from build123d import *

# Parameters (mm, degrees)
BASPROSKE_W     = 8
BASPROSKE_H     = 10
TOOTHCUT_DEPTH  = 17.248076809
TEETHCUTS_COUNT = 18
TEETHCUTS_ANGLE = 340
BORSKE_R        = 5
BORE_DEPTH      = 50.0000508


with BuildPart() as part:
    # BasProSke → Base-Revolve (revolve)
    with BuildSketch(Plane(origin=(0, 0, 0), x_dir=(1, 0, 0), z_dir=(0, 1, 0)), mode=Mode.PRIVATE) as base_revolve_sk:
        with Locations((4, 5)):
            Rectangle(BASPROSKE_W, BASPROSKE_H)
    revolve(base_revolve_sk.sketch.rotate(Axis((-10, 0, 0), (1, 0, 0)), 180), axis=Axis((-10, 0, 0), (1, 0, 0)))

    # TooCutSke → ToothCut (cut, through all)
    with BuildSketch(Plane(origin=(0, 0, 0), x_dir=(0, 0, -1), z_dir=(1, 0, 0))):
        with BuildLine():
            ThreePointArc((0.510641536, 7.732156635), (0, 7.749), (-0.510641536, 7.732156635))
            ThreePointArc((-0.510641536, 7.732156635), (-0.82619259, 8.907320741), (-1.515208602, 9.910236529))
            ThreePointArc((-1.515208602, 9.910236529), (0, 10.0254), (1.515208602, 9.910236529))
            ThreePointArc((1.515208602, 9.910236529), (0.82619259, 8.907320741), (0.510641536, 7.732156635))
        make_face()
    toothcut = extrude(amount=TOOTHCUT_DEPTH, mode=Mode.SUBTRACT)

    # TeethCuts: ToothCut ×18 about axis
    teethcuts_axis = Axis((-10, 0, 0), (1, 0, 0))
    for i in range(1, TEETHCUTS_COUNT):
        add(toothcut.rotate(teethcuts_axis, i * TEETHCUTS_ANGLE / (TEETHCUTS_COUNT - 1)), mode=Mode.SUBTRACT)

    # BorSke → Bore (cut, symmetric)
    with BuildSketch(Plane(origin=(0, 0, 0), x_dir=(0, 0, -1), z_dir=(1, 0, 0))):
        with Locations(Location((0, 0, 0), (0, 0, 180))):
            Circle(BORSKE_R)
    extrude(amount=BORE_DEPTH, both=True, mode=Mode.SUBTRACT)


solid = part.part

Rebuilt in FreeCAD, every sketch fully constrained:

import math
import FreeCAD as App
import Part
import Sketcher
Q = App.Units.Quantity


def add_polygon(sketch, points):
    """Adds a closed chain of lines whose ends are joined by coincident constraints."""
    first, n = sketch.GeometryCount, len(points)
    for a, b in zip(points, points[1:] + points[:1]):
        sketch.addGeometry(Part.LineSegment(App.Vector(*a, 0), App.Vector(*b, 0)), False)
    for i in range(n):
        sketch.addConstraint(Sketcher.Constraint("Coincident", first + i, 2, first + (i + 1) % n, 1))

doc = App.newDocument("Part")
params = doc.addObject("Spreadsheet::Sheet", "Params")
for row, (alias, value) in enumerate([
    ("sketch1_width", "8 mm"),
    ("sketch1_height", "10 mm"),
    ("revolution_angle", "360 deg"),
    ("sketch2_radius", "3.6 mm"),
    ("sketch3_diameter", "10 mm"),
    ("pocket2_length", "100.000102 mm"),
], start=1):
    params.set(f"A{row}", alias)
    params.set(f"B{row}", "=" + value)
    params.setAlias(f"B{row}", alias)

body = doc.addObject("PartDesign::Body", "Body")

# Sketch on XZ plane
sketch1 = body.newObject("Sketcher::SketchObject", "Sketch")
sketch1.AttachmentSupport = (doc.getObject("XZ_Plane"), [""])
sketch1.MapMode = "FlatFace"
add_polygon(sketch1, [(0, -10), (0, 0), (8, 0), (8, -10)])  # lines 0-3
sketch1.addConstraint(Sketcher.Constraint("Vertical", 0))
sketch1.addConstraint(Sketcher.Constraint("Horizontal", 1))
sketch1.addConstraint(Sketcher.Constraint("Vertical", 2))
sketch1.addConstraint(Sketcher.Constraint("Horizontal", 3))
sketch1.addConstraint(Sketcher.Constraint("Coincident", 0, 2, -1, 1))
sketch1.addConstraint(Sketcher.Constraint("DistanceX", 1, 1, 1, 2, Q("8 mm")))
sketch1.addConstraint(Sketcher.Constraint("DistanceY", 0, 1, 0, 2, Q("10 mm")))
sketch1.setExpression("Constraints[9]", "Params.sketch1_width")
sketch1.setExpression("Constraints[10]", "Params.sketch1_height")
revolution = body.newObject("PartDesign::Revolution", "Revolution")
revolution.Profile = sketch1
revolution.ReferenceAxis = (sketch1, ["H_Axis"])
revolution.setExpression("Angle", "Params.revolution_angle")

# Sketch on YZ plane
sketch2 = body.newObject("Sketcher::SketchObject", "Sketch001")
sketch2.AttachmentSupport = (doc.getObject("YZ_Plane"), [""])
sketch2.MapMode = "FlatFace"
sketch2.addGeometry(Part.ArcOfCircle(Part.Circle(App.Vector(0, 0, 0), App.Vector(0, 0, 1), 7.749), math.radians(-3.7784), math.radians(3.7784)), False)
sketch2.addGeometry(Part.ArcOfCircle(Part.Circle(App.Vector(7.399578, -4.095246, 0), App.Vector(0, 0, 1), 3.6), math.radians(45.780817), math.radians(84.699291)), False)
sketch2.addGeometry(Part.ArcOfCircle(Part.Circle(App.Vector(0, 0, 0), App.Vector(0, 0, 1), 10.0254), math.radians(-8.692821), math.radians(8.692821)), False)
sketch2.addGeometry(Part.ArcOfCircle(Part.Circle(App.Vector(7.399578, 4.095246, 0), App.Vector(0, 0, 1), 3.6), math.radians(-84.699291), math.radians(-45.780817)), False)
sketch2.addConstraint(Sketcher.Constraint("Coincident", 0, 1, 1, 2))
sketch2.addConstraint(Sketcher.Constraint("Coincident", 1, 1, 2, 1))
sketch2.addConstraint(Sketcher.Constraint("Coincident", 2, 2, 3, 2))
sketch2.addConstraint(Sketcher.Constraint("Coincident", 3, 1, 0, 2))
sketch2.addConstraint(Sketcher.Constraint("Coincident", 0, 3, -1, 1))
sketch2.addConstraint(Sketcher.Constraint("Coincident", 2, 3, -1, 1))
sketch2.addConstraint(Sketcher.Constraint("Equal", 1, 3))
sketch2.addConstraint(Sketcher.Constraint("Symmetric", 1, 3, 3, 3, -1))
sketch2.addConstraint(Sketcher.Constraint("Radius", 1, Q("3.6 mm")))
sketch2.addConstraint(Sketcher.Constraint("Radius", 0, Q("7.749 mm")))
sketch2.addConstraint(Sketcher.Constraint("Radius", 2, Q("10.0254 mm")))
sketch2.addConstraint(Sketcher.Constraint("DistanceX", -1, 1, 1, 3, Q("7.399578 mm")))
sketch2.addConstraint(Sketcher.Constraint("DistanceY", 0, 1, -1, 1, Q("0.510642 mm")))
sketch2.setExpression("Constraints[8]", "Params.sketch2_radius")
pocket1 = body.newObject("PartDesign::Pocket", "Pocket")
pocket1.Profile = sketch2
pocket1.Type = "ThroughAll"
pocket1.Reversed = True
doc.recompute()

polarpattern = body.newObject("PartDesign::PolarPattern", "PolarPattern")
polarpattern.Originals = [pocket1]
polarpattern.Axis = (doc.getObject("X_Axis"), [""])
polarpattern.Angle = 360
polarpattern.Occurrences = 18
body.Tip = polarpattern

# Sketch on YZ plane
sketch3 = body.newObject("Sketcher::SketchObject", "Sketch002")
sketch3.AttachmentSupport = (doc.getObject("YZ_Plane"), [""])
sketch3.MapMode = "FlatFace"
sketch3.addGeometry(Part.Circle(App.Vector(0, 0, 0), App.Vector(0, 0, 1), 5), False)
sketch3.addConstraint(Sketcher.Constraint("Coincident", 0, 3, -1, 1))
sketch3.addConstraint(Sketcher.Constraint("Diameter", 0, Q("10 mm")))
sketch3.setExpression("Constraints[1]", "Params.sketch3_diameter")
pocket2 = body.newObject("PartDesign::Pocket", "Pocket001")
pocket2.Profile = sketch3
pocket2.setExpression("Length", "Params.pocket2_length")
pocket2.Midplane = True

doc.recompute()
